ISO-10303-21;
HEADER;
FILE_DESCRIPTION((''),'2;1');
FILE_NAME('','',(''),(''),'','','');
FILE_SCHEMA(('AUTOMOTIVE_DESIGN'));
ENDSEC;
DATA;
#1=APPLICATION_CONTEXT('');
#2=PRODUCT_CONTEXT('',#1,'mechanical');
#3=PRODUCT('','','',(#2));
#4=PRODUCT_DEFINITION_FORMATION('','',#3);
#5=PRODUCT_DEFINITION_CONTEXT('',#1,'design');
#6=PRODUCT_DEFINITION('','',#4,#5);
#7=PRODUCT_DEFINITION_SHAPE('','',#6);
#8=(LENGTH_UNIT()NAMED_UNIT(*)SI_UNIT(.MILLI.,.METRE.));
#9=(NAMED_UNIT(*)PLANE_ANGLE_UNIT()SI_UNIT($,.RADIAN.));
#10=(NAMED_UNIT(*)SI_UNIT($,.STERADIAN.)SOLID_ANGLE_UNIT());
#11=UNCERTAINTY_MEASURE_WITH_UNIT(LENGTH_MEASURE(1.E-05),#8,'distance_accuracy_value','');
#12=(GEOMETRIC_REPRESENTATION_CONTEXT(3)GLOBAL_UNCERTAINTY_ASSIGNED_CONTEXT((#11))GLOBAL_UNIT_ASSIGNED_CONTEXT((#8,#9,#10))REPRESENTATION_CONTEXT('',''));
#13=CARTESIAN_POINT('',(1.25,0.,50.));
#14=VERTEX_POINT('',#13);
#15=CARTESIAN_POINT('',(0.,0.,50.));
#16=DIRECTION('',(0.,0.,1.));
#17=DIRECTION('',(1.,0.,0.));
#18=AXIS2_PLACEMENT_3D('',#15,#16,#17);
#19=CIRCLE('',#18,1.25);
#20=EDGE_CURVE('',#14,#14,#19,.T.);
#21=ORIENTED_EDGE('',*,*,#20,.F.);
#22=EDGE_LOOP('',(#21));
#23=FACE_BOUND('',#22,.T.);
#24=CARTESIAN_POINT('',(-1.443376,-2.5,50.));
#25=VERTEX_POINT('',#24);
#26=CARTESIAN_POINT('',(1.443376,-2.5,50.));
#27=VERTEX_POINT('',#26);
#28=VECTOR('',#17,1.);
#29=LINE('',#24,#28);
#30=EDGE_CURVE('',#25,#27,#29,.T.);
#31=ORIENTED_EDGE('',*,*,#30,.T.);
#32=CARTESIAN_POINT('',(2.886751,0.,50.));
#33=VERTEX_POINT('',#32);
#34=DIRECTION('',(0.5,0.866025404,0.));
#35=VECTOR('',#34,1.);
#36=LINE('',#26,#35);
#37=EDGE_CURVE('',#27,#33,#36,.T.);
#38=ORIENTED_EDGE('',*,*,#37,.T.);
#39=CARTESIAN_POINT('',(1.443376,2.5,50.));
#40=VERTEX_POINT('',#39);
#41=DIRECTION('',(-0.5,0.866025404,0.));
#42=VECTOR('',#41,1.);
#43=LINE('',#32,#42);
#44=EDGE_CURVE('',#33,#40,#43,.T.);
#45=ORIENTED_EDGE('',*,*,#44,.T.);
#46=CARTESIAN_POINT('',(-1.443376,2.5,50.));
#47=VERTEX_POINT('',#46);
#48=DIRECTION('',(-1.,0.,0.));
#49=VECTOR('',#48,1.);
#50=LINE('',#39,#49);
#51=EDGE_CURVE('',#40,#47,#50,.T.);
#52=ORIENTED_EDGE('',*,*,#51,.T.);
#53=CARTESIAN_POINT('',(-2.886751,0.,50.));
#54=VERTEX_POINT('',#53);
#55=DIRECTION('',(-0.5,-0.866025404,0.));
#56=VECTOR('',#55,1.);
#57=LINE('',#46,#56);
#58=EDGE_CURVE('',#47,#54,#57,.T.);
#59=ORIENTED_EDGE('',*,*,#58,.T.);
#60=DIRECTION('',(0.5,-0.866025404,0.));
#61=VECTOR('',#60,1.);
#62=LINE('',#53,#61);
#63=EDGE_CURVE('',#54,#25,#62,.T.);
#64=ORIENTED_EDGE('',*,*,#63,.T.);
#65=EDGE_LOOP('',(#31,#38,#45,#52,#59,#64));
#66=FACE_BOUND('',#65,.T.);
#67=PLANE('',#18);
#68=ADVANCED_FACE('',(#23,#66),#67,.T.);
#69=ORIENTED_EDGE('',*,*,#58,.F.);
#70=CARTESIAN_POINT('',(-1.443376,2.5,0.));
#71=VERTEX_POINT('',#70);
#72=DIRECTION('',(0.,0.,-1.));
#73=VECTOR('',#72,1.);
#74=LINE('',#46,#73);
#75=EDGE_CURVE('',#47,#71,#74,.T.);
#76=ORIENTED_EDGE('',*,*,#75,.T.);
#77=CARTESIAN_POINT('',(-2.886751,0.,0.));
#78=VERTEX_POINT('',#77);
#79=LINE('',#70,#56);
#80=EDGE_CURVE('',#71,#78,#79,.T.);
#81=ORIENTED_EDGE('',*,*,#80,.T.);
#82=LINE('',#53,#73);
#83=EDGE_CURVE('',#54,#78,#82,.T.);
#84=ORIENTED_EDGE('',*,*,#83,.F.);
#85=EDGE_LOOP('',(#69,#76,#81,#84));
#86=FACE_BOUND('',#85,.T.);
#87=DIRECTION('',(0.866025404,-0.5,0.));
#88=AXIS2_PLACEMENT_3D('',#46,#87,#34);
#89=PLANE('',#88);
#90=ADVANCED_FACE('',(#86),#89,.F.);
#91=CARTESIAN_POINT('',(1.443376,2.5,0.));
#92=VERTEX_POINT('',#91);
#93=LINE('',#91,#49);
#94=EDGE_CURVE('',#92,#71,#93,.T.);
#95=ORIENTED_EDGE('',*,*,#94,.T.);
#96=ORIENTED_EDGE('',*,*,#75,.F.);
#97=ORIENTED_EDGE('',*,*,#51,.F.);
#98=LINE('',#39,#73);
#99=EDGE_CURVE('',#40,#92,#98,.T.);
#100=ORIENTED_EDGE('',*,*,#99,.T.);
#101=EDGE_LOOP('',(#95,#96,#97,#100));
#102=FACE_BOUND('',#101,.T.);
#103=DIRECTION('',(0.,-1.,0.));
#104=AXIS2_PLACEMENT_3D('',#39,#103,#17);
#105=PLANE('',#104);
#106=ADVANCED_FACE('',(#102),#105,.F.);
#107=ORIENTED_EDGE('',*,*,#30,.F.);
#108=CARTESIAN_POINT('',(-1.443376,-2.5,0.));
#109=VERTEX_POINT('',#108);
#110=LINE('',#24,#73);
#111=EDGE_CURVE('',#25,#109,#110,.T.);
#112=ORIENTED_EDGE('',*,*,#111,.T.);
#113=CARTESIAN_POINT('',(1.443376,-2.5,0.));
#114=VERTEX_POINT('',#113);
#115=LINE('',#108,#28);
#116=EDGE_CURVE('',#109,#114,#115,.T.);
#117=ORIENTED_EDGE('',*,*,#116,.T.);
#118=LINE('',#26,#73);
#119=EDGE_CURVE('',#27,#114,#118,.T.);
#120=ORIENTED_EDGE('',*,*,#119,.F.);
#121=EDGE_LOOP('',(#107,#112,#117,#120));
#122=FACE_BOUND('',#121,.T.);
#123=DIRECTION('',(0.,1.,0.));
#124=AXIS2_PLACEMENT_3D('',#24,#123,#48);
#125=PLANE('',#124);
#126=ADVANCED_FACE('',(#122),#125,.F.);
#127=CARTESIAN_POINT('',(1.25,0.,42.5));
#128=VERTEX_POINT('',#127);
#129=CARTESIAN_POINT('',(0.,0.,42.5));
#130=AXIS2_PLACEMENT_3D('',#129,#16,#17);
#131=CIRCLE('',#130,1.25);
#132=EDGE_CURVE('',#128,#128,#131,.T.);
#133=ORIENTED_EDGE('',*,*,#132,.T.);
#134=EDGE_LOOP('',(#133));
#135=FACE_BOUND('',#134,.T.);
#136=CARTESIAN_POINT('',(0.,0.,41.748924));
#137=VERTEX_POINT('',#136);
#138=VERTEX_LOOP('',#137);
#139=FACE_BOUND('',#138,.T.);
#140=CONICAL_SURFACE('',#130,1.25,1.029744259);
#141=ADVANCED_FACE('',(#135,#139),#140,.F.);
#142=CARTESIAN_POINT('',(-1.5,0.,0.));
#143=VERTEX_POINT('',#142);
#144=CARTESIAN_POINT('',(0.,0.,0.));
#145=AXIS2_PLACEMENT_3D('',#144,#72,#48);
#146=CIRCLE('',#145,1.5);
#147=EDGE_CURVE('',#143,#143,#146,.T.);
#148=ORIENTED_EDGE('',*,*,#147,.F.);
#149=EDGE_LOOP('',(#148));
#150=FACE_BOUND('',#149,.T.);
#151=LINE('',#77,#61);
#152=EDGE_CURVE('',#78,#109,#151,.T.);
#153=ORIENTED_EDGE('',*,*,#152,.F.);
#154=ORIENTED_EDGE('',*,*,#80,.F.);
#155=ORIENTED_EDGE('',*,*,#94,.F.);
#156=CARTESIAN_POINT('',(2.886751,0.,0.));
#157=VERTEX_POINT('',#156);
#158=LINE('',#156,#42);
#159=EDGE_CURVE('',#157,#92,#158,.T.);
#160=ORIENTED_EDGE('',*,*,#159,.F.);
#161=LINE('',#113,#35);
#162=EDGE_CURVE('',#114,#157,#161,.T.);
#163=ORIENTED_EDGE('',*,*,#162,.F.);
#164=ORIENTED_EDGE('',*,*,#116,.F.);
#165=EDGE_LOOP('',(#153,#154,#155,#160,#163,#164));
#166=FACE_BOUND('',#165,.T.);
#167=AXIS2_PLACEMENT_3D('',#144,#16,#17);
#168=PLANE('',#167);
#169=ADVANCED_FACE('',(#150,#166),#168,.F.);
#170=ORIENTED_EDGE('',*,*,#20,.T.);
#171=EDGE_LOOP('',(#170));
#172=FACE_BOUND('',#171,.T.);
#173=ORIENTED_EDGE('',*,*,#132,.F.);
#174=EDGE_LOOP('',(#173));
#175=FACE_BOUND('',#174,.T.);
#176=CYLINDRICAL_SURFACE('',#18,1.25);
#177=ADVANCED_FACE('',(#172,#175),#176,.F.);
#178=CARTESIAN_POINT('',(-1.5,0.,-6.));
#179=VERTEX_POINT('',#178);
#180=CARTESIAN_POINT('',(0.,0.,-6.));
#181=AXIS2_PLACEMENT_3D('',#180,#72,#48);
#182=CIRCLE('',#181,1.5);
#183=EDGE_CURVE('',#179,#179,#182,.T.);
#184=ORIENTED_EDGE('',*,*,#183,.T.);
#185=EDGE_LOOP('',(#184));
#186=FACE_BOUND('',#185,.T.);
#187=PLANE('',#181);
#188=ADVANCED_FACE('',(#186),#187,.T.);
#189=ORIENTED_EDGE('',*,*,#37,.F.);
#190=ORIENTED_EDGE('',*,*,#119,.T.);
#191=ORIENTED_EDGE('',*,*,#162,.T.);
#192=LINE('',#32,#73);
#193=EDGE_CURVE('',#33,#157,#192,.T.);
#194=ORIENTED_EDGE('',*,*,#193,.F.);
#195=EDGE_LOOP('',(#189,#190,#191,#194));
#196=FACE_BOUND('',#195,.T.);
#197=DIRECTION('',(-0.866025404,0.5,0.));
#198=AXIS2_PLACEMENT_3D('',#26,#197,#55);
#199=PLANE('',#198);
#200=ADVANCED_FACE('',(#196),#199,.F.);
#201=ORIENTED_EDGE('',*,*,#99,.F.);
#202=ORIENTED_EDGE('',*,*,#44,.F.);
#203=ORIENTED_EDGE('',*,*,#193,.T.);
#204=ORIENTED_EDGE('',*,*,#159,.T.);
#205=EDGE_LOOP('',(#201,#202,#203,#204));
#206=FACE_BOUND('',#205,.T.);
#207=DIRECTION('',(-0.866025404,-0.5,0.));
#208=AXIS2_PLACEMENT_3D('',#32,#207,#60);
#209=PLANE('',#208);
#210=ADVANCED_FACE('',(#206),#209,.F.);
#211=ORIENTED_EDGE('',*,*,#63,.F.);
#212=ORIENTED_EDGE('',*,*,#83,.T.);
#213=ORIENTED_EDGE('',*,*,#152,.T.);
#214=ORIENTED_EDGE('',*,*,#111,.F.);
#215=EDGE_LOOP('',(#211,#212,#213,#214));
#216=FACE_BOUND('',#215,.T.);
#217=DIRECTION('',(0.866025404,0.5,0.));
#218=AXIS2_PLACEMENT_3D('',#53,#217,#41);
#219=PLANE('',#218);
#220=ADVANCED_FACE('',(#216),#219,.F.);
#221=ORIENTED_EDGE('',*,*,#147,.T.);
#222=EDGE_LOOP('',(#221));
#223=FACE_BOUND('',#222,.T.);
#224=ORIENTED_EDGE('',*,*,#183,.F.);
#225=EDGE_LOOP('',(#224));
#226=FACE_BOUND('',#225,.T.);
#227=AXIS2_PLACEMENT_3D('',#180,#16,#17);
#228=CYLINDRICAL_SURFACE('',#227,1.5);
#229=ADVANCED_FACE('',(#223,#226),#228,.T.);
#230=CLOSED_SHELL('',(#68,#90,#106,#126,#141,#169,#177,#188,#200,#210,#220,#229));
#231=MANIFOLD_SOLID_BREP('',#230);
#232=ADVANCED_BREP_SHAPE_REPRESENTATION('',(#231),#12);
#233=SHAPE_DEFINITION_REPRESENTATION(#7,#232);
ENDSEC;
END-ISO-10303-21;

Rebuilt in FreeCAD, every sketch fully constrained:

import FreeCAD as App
import Part
import Sketcher
from FreeCAD import Vector
Q = App.Units.Quantity

doc = App.newDocument("Part")
params = doc.addObject("Spreadsheet::Sheet", "Params")
for row, (alias, value) in enumerate([
    ("pad1_length", "50 mm"),
    ("sketch2_diameter", "3 mm"),
    ("pad2_length", "6 mm"),
    ("sketch3_diameter", "2.5 mm"),
    ("hole_diameter", "2.5 mm"),
    ("hole_depth", "7.5 mm"),
], start=1):
    params.set(f"A{row}", alias)
    params.set(f"B{row}", "=" + value)
    params.setAlias(f"B{row}", alias)

body = doc.addObject("PartDesign::Body", "Body")

# Sketch on XY plane
sketch1 = doc.addObject("Sketcher::SketchObject", "Sketch")
body.addObject(sketch1)
sketch1.AttachmentSupport = (doc.XY_Plane, [""])
sketch1.MapMode = "FlatFace"
sketch1.addGeometry([
    Part.LineSegment(Vector(-1.4, 2.5, 0), Vector(-2.9, 0, 0)),  # 0
    Part.LineSegment(Vector(-2.9, 0, 0), Vector(-1.4, -2.5, 0)),  # 1
    Part.LineSegment(Vector(-1.4, -2.5, 0), Vector(1.4, -2.5, 0)),  # 2
    Part.LineSegment(Vector(1.4, -2.5, 0), Vector(2.9, 0, 0)),  # 3
    Part.LineSegment(Vector(2.9, 0, 0), Vector(1.4, 2.5, 0)),  # 4
    Part.LineSegment(Vector(1.4, 2.5, 0), Vector(-1.4, 2.5, 0)),  # 5
], False)
sketch1.addConstraint([
    Sketcher.Constraint("Coincident", 0, 2, 1, 1),
    Sketcher.Constraint("Coincident", 1, 2, 2, 1),
    Sketcher.Constraint("Coincident", 2, 2, 3, 1),
    Sketcher.Constraint("Coincident", 3, 2, 4, 1),
    Sketcher.Constraint("Coincident", 4, 2, 5, 1),
    Sketcher.Constraint("Coincident", 5, 2, 0, 1),
    Sketcher.Constraint("Horizontal", 2),
    Sketcher.Constraint("Horizontal", 5),
    Sketcher.Constraint("Symmetric", 0, 2, 3, 2, -1, 1),
    Sketcher.Constraint("Symmetric", 1, 2, 4, 2, -1, 1),
    Sketcher.Constraint("PointOnObject", 0, 2, -1),
    Sketcher.Constraint("Parallel", 0, 3),
    Sketcher.Constraint("Vertical", 2, 2, 4, 2),
    Sketcher.Constraint("Angle", 0, Q("-120 deg")),
    Sketcher.Constraint("DistanceY", 2, 2, 4, 2, 5.0),
    Sketcher.Constraint("DistanceX", 2, 1, 2, 2, 2.886751),
])
pad1 = doc.addObject("PartDesign::Pad", "Pad")
body.addObject(pad1)
pad1.Profile = sketch1
pad1.setExpression("Length", "Params.pad1_length")

# Sketch on XY plane
sketch2 = doc.addObject("Sketcher::SketchObject", "Sketch001")
body.addObject(sketch2)
sketch2.AttachmentSupport = (doc.XY_Plane, [""])
sketch2.MapMode = "FlatFace"
sketch2.addGeometry(Part.Circle(Vector(0, 0, 0), Vector(0, 0, 1), 1.5), False)
sketch2.addConstraint([
    Sketcher.Constraint("Coincident", 0, 3, -1, 1),
    Sketcher.Constraint("Diameter", 0, 3.0),
])
sketch2.setExpression("Constraints[1]", "Params.sketch2_diameter")
pad2 = doc.addObject("PartDesign::Pad", "Pad001")
body.addObject(pad2)
pad2.Profile = sketch2
pad2.setExpression("Length", "Params.pad2_length")
pad2.Reversed = True

# Sketch on XY plane
sketch3 = doc.addObject("Sketcher::SketchObject", "Sketch002")
body.addObject(sketch3)
sketch3.AttachmentSupport = (doc.XY_Plane, [""])
sketch3.MapMode = "FlatFace"
sketch3.AttachmentOffset = App.Placement(Vector(0, 0, 50), App.Rotation())
sketch3.addGeometry(Part.Circle(Vector(0, 0, 0), Vector(0, 0, 1), 1.2), False)
sketch3.addConstraint([
    Sketcher.Constraint("Coincident", 0, 3, -1, 1),
    Sketcher.Constraint("Diameter", 0, 2.5),
])
sketch3.setExpression("Constraints[1]", "Params.sketch3_diameter")
doc.recompute()
hole = doc.addObject("PartDesign::Hole", "Hole")
body.addObject(hole)
hole.Profile = sketch3
hole.ThreadType = "None"
hole.setExpression("Diameter", "Params.hole_diameter")
hole.DepthType = "Dimension"
hole.setExpression("Depth", "Params.hole_depth")
hole.DrillPoint = "Angled"
hole.DrillPointAngle = 118

doc.recompute()
